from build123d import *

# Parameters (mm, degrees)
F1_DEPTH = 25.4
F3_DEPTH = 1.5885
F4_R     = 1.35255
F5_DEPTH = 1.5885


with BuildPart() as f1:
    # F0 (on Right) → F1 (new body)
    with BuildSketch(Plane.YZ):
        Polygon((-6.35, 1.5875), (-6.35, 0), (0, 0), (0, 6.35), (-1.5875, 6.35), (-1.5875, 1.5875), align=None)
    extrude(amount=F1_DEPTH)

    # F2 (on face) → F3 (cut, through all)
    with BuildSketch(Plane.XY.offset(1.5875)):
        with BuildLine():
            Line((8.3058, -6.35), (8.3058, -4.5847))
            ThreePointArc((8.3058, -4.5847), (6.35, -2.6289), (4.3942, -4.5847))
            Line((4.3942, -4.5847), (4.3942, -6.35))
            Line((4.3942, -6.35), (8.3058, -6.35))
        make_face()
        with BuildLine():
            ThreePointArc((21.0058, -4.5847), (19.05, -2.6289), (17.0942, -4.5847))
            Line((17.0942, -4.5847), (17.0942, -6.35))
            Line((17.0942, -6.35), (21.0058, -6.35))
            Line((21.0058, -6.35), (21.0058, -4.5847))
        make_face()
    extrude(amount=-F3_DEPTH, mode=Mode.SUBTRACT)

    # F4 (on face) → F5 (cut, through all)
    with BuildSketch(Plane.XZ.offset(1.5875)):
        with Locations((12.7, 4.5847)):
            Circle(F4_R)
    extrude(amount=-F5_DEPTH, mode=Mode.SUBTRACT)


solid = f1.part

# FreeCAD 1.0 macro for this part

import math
import FreeCAD as App
import Part
import Sketcher
Q = App.Units.Quantity


def add_polygon(sketch, points):
    """Adds a closed chain of lines whose ends are joined by coincident constraints."""
    first, n = sketch.GeometryCount, len(points)
    for a, b in zip(points, points[1:] + points[:1]):
        sketch.addGeometry(Part.LineSegment(App.Vector(*a, 0), App.Vector(*b, 0)), False)
    for i in range(n):
        sketch.addConstraint(Sketcher.Constraint("Coincident", first + i, 2, first + (i + 1) % n, 1))

doc = App.newDocument("Part")
body = doc.addObject("PartDesign::Body", "Body")

sketch1 = body.newObject("Sketcher::SketchObject", "Sketch")
sketch1.AttachmentSupport = (doc.getObject("YZ_Plane"), [""])
sketch1.MapMode = "FlatFace"
add_polygon(sketch1, [(-6.3, 1.6), (-6.3, 0), (0, 0), (0, 6.3), (-1.6, 6.3), (-1.6, 1.6)])
sketch1.addConstraint([
    Sketcher.Constraint("Vertical", 0),
    Sketcher.Constraint("Horizontal", 1),
    Sketcher.Constraint("Vertical", 2),
    Sketcher.Constraint("Horizontal", 3),
    Sketcher.Constraint("Vertical", 4),
    Sketcher.Constraint("Horizontal", 5),
    Sketcher.Constraint("Coincident", 1, 2, -1, 1),
    Sketcher.Constraint("Equal", 3, 0),
    Sketcher.Constraint("Equal", 1, 2),
    Sketcher.Constraint("DistanceX", 1, 1, 1, 2, Q("0.25 in")),
    Sketcher.Constraint("DistanceX", 3, 2, 3, 1, Q("0.0625 in")),
])
pad1 = body.newObject("PartDesign::Pad", "Pad")
pad1.Profile = sketch1
pad1.Length = Q("1 in")

sketch2 = body.newObject("Sketcher::SketchObject", "Sketch001")
sketch2.AttachmentSupport = (doc.getObject("XY_Plane"), [""])
sketch2.MapMode = "FlatFace"
sketch2.AttachmentOffset = App.Placement(App.Vector(0, 0, 0.0625 * 25.4), App.Rotation())
sketch2.addGeometry([
    Part.LineSegment(App.Vector(8.3, -6.3, 0), App.Vector(8.3, -4.6, 0)),
    Part.ArcOfCircle(Part.Circle(App.Vector(6.3, -4.6, 0), App.Vector(0, 0, 1), 2), math.radians(0), math.radians(180)),
    Part.LineSegment(App.Vector(4.4, -4.6, 0), App.Vector(4.4, -6.3, 0)),
    Part.LineSegment(App.Vector(4.4, -6.3, 0), App.Vector(8.3, -6.3, 0)),
    Part.ArcOfCircle(Part.Circle(App.Vector(19.1, -4.6, 0), App.Vector(0, 0, 1), 2), math.radians(0), math.radians(180)),
    Part.LineSegment(App.Vector(17.1, -4.6, 0), App.Vector(17.1, -6.3, 0)),
    Part.LineSegment(App.Vector(17.1, -6.3, 0), App.Vector(21, -6.3, 0)),
    Part.LineSegment(App.Vector(21, -6.3, 0), App.Vector(21, -4.6, 0)),
], False)
sketch2.addConstraint([
    Sketcher.Constraint("Tangent", 0, 2, 1, 1),
    Sketcher.Constraint("Tangent", 1, 2, 2, 1),
    Sketcher.Constraint("Coincident", 2, 2, 3, 1),
    Sketcher.Constraint("Coincident", 3, 2, 0, 1),
    Sketcher.Constraint("Tangent", 4, 2, 5, 1),
    Sketcher.Constraint("Coincident", 5, 2, 6, 1),
    Sketcher.Constraint("Coincident", 6, 2, 7, 1),
    Sketcher.Constraint("Tangent", 7, 2, 4, 1),
    Sketcher.Constraint("Vertical", 0),
    Sketcher.Constraint("Vertical", 2),
    Sketcher.Constraint("Horizontal", 3),
    Sketcher.Constraint("Vertical", 5),
    Sketcher.Constraint("Horizontal", 6),
    Sketcher.Constraint("Vertical", 7),
    Sketcher.Constraint("Equal", 1, 4),
    Sketcher.Constraint("Horizontal", 1, 3, 4, 3),
    Sketcher.Constraint("Horizontal", 3, 2, 5, 2),
    Sketcher.Constraint("Radius", 1, Q("0.077 in")),
    Sketcher.Constraint("DistanceX", 1, 3, 4, 3, Q("0.5 in")),
    Sketcher.Constraint("DistanceX", -1, 1, 1, 3, Q("0.25 in")),
    Sketcher.Constraint("DistanceY", 2, 2, -1, 1, Q("0.25 in")),
    Sketcher.Constraint("DistanceY", 0, 1, 0, 2, Q("0.0695 in")),
])
pocket1 = body.newObject("PartDesign::Pocket", "Pocket")
pocket1.Profile = sketch2
pocket1.Type = "ThroughAll"

sketch3 = body.newObject("Sketcher::SketchObject", "Sketch002")
sketch3.AttachmentSupport = (doc.getObject("XZ_Plane"), [""])
sketch3.MapMode = "FlatFace"
sketch3.AttachmentOffset = App.Placement(App.Vector(0, 0, 0.0625 * 25.4), App.Rotation())
sketch3.addGeometry(Part.Circle(App.Vector(12.7, 4.6, 0), App.Vector(0, 0, 1), 1.4), False)
sketch3.addConstraint([
    Sketcher.Constraint("Diameter", 0, Q("0.1065 in")),
    Sketcher.Constraint("DistanceX", -1, 1, 0, 3, Q("0.5 in")),
    Sketcher.Constraint("DistanceY", -1, 1, 0, 3, Q("0.1805 in")),
])
pocket2 = body.newObject("PartDesign::Pocket", "Pocket001")
pocket2.Profile = sketch3
pocket2.Type = "ThroughAll"

doc.recompute()
